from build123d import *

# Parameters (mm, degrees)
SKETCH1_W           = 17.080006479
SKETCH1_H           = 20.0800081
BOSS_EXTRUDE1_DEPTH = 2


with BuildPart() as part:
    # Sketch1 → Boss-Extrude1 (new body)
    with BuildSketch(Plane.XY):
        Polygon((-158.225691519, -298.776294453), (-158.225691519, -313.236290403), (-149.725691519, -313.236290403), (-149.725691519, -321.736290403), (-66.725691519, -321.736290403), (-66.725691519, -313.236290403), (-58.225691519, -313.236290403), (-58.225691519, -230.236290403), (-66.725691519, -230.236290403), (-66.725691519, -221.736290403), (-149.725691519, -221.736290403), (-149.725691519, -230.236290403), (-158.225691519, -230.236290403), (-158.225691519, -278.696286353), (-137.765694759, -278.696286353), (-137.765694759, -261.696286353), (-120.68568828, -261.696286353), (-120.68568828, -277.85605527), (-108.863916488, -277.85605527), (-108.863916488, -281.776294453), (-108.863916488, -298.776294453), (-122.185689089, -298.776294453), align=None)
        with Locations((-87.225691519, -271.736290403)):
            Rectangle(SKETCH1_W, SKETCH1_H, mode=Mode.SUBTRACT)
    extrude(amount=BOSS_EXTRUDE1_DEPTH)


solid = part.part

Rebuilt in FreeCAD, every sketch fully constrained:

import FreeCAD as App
import Part
import Sketcher

V = App.Vector


def add_polygon(sketch, points):
    """Adds a closed chain of lines whose ends are joined by coincident constraints."""
    first, n = sketch.GeometryCount, len(points)
    for a, b in zip(points, points[1:] + points[:1]):
        sketch.addGeometry(Part.LineSegment(App.Vector(*a, 0), App.Vector(*b, 0)), False)
    for i in range(n):
        sketch.addConstraint(Sketcher.Constraint("Coincident", first + i, 2, first + (i + 1) % n, 1))

doc = App.newDocument("Part")
body = doc.addObject("PartDesign::Body", "Body")

sketch1 = body.newObject("Sketcher::SketchObject", "Sketch")
sketch1.AttachmentSupport = (doc.getObject("XY_Plane"), [""])
sketch1.MapMode = "FlatFace"
add_polygon(sketch1, [(-158, -299), (-158, -313), (-150, -313), (-150, -322), (-67, -322), (-67, -313), (-58, -313), (-58, -230), (-67, -230), (-67, -222), (-150, -222), (-150, -230), (-158, -230), (-158, -279), (-138, -279), (-138, -262), (-121, -262), (-121, -278), (-109, -278), (-109, -299)])
add_polygon(sketch1, [(-79, -282), (-96, -282), (-96, -262), (-79, -262)])
sketch1.addConstraint([
    Sketcher.Constraint("Vertical", 0),
    Sketcher.Constraint("Horizontal", 1),
    Sketcher.Constraint("Vertical", 2),
    Sketcher.Constraint("Horizontal", 3),
    Sketcher.Constraint("Vertical", 4),
    Sketcher.Constraint("Horizontal", 5),
    Sketcher.Constraint("Vertical", 6),
    Sketcher.Constraint("Horizontal", 7),
    Sketcher.Constraint("Vertical", 8),
    Sketcher.Constraint("Horizontal", 9),
    Sketcher.Constraint("Vertical", 10),
    Sketcher.Constraint("Horizontal", 11),
    Sketcher.Constraint("Vertical", 12),
    Sketcher.Constraint("Horizontal", 13),
    Sketcher.Constraint("Vertical", 14),
    Sketcher.Constraint("Horizontal", 15),
    Sketcher.Constraint("Vertical", 16),
    Sketcher.Constraint("Horizontal", 17),
    Sketcher.Constraint("Vertical", 18),
    Sketcher.Constraint("Horizontal", 19),
    Sketcher.Constraint("Horizontal", 20),
    Sketcher.Constraint("Vertical", 21),
    Sketcher.Constraint("Horizontal", 22),
    Sketcher.Constraint("Vertical", 23),
    Sketcher.Constraint("Horizontal", 1, 2, 4, 2),
    Sketcher.Constraint("Horizontal", 7, 2, 10, 2),
    Sketcher.Constraint("Horizontal", 15, 2, 21, 2),
    Sketcher.Constraint("Vertical", 4, 2, 7, 2),
    Sketcher.Constraint("Vertical", 2, 2, 9, 2),
    Sketcher.Constraint("Vertical", 0, 2, 11, 2),
    Sketcher.Constraint("Equal", 1, 5),
    Sketcher.Constraint("Equal", 15, 20),
    Sketcher.Constraint("Equal", 11, 2),
    Sketcher.Constraint("Equal", 9, 6),
    Sketcher.Constraint("Equal", 4, 8),
    Sketcher.Constraint("DistanceX", 3, 1, 3, 2, 83.0),
    Sketcher.Constraint("DistanceY", 14, 1, 14, 2, 17.0),
    Sketcher.Constraint("DistanceX", 1, 1, 1, 2, 8.5),
    Sketcher.Constraint("DistanceY", 18, 2, 20, 2, 17.0),
    Sketcher.Constraint("DistanceX", 13, 2, 20, 2, 42.0),
    Sketcher.Constraint("DistanceX", 17, 1, 17, 2, 11.821772),
    Sketcher.Constraint("DistanceY", 16, 2, 16, 1, 16.159769),
    Sketcher.Constraint("DistanceY", 18, 2, 18, 1, 20.920239),
    Sketcher.Constraint("DistanceX", 13, 1, 13, 2, 20.459997),
    Sketcher.Constraint("DistanceX", 15, 1, 15, 2, 17.080006),
    Sketcher.Constraint("DistanceY", 0, 2, 0, 1, 14.459996),
    Sketcher.Constraint("DistanceX", 0, 2, -1, 1, 158.225692),
    Sketcher.Constraint("DistanceY", 0, 2, -1, 1, 313.23629),
])
pad1 = body.newObject("PartDesign::Pad", "Pad")
pad1.Profile = sketch1
pad1.Length = 2

doc.recompute()
